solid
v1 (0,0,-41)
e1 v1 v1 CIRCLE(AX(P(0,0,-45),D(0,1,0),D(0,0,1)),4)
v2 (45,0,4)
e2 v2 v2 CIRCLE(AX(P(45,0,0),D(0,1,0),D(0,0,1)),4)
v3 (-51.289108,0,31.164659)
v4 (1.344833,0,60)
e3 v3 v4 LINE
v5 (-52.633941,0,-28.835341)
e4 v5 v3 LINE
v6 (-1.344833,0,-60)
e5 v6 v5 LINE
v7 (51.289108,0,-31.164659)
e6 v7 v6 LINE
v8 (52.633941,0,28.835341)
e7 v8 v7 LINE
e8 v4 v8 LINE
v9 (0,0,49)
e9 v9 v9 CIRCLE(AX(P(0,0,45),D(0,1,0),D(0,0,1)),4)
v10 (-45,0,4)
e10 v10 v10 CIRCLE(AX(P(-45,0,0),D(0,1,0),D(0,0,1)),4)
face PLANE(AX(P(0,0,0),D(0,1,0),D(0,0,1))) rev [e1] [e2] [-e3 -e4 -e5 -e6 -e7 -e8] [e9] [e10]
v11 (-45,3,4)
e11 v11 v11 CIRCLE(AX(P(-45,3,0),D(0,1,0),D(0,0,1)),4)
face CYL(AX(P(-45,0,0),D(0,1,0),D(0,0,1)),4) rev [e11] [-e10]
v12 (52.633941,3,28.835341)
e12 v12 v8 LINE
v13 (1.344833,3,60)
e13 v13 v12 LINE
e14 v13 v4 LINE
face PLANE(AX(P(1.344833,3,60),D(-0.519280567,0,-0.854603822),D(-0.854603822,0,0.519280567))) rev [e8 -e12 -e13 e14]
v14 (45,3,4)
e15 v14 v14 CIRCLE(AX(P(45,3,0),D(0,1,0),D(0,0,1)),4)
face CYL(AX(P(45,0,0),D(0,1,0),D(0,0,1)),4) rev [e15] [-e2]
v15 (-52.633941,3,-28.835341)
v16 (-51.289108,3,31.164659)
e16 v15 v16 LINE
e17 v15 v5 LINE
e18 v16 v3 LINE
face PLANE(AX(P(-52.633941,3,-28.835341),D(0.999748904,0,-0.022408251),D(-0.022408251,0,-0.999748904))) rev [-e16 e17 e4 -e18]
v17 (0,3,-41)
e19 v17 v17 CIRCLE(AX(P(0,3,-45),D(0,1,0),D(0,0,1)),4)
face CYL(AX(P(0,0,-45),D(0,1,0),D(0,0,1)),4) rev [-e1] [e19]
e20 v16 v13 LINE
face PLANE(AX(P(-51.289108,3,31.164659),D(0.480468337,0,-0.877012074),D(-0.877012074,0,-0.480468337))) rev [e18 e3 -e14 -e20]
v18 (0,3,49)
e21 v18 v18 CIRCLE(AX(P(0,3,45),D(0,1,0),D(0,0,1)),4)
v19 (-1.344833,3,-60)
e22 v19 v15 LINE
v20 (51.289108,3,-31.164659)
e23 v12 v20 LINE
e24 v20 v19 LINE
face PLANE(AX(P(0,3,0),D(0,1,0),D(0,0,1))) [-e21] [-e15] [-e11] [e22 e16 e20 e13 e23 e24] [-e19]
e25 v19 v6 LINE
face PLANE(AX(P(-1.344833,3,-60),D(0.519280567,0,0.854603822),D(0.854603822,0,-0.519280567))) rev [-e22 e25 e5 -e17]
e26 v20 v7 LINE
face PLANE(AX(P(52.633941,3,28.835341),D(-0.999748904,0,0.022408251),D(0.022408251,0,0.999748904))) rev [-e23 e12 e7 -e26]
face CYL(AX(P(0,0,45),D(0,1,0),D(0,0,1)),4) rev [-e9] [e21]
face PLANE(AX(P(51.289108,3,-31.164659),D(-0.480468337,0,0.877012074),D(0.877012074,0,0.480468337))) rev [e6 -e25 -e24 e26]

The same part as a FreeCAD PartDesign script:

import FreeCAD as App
import Part
import Sketcher

V = App.Vector


def add_polygon(sketch, points):
    """Adds a closed chain of lines whose ends are joined by coincident constraints."""
    first, n = sketch.GeometryCount, len(points)
    for a, b in zip(points, points[1:] + points[:1]):
        sketch.addGeometry(Part.LineSegment(App.Vector(*a, 0), App.Vector(*b, 0)), False)
    for i in range(n):
        sketch.addConstraint(Sketcher.Constraint("Coincident", first + i, 2, first + (i + 1) % n, 1))

doc = App.newDocument("Part")
body = doc.addObject("PartDesign::Body", "Body")

# Sketch on XZ plane
sketch1 = doc.addObject("Sketcher::SketchObject", "Sketch")
body.addObject(sketch1)
sketch1.AttachmentSupport = (doc.XZ_Plane, [""])
sketch1.MapMode = "FlatFace"
add_polygon(sketch1, [(52.633941, 28.835341), (51.289108, -31.164659), (-1.344833, -60), (-52.633941, -28.835341), (-51.289108, 31.164659), (1.344833, 60)])  # lines 0-5
sketch1.addConstraint([
    Sketcher.Constraint("Symmetric", 0, 2, 3, 2, -1, 1),
    Sketcher.Constraint("Symmetric", 1, 2, 4, 2, -1, 1),
    Sketcher.Constraint("Symmetric", 2, 2, 5, 2, -1, 1),
    Sketcher.Constraint("Equal", 0, 1),
    Sketcher.Constraint("Equal", 1, 2),
    Sketcher.Constraint("DistanceY", 1, 2, -1, 1, 60.0),
    Sketcher.Constraint("DistanceY", 2, 2, 3, 2, 60.0),
    Sketcher.Constraint("Distance", 0, 60.01507),
    Sketcher.Constraint("DistanceY", 0, 2, -1, 1, 31.164659),
])
pad1 = doc.addObject("PartDesign::Pad", "Pad")
body.addObject(pad1)
pad1.Profile = sketch1
pad1.Length = 3
pad1.Reversed = True

# Sketch on XZ plane
sketch2 = doc.addObject("Sketcher::SketchObject", "Sketch001")
body.addObject(sketch2)
sketch2.AttachmentSupport = (doc.XZ_Plane, [""])
sketch2.MapMode = "FlatFace"
sketch2.AttachmentOffset = App.Placement(V(0, 0, -3), App.Rotation())
sketch2.addGeometry([
    Part.Circle(V(-45, 0, 0), V(0, 0, 1), 4),
    Part.Circle(V(0, -45, 0), V(0, 0, 1), 4),
    Part.Circle(V(45, 0, 0), V(0, 0, 1), 4),
    Part.Circle(V(0, 45, 0), V(0, 0, 1), 4),
], False)
sketch2.addConstraint([
    Sketcher.Constraint("Equal", 0, 1),
    Sketcher.Constraint("Equal", 1, 2),
    Sketcher.Constraint("Equal", 2, 3),
    Sketcher.Constraint("Symmetric", 0, 3, 2, 3, -1, 1),
    Sketcher.Constraint("Symmetric", 1, 3, 3, 3, -1, 1),
    Sketcher.Constraint("PointOnObject", 0, 3, -1),
    Sketcher.Constraint("PointOnObject", 1, 3, -2),
    Sketcher.Constraint("Diameter", 0, 8.0),
    Sketcher.Constraint("DistanceX", 0, 3, -1, 1, 45.0),
    Sketcher.Constraint("DistanceY", 1, 3, -1, 1, 45.0),
])
pocket1 = doc.addObject("PartDesign::Pocket", "Pocket")
body.addObject(pocket1)
pocket1.Profile = sketch2
pocket1.Type = "ThroughAll"
pocket1.Reversed = True

doc.recompute()
